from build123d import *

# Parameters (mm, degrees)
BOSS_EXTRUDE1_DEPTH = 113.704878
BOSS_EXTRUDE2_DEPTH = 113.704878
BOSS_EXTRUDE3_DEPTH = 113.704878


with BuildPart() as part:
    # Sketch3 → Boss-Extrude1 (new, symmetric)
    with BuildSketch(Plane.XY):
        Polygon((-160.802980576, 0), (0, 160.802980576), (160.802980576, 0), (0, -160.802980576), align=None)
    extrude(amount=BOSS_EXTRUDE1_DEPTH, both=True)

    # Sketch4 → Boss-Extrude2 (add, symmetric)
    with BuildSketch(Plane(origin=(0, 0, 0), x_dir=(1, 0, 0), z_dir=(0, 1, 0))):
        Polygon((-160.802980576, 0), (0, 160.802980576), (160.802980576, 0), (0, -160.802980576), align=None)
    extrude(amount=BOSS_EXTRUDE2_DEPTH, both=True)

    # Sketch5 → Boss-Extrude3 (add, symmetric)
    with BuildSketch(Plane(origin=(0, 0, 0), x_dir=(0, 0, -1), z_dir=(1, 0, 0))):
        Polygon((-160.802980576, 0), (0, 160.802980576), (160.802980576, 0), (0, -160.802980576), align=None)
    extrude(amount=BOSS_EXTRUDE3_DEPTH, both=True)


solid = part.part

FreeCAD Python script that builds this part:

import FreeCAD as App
import Part
import Sketcher

doc = App.newDocument("Part")
body = doc.addObject("PartDesign::Body", "Body")

# Sketch on XY plane
sketch1 = body.newObject("Sketcher::SketchObject", "Sketch")
sketch1.AttachmentSupport = (doc.getObject("XY_Plane"), [""])
sketch1.MapMode = "FlatFace"
sketch1.addGeometry([
    Part.LineSegment(App.Vector(0, 161, 0), App.Vector(-161, 0, 0)),
    Part.LineSegment(App.Vector(-161, 0, 0), App.Vector(0, -161, 0)),
    Part.LineSegment(App.Vector(0, -161, 0), App.Vector(161, 0, 0)),
    Part.LineSegment(App.Vector(161, 0, 0), App.Vector(0, 161, 0)),
], False)
sketch1.addConstraint([
    Sketcher.Constraint("Coincident", 0, 2, 1, 1),
    Sketcher.Constraint("Coincident", 1, 2, 2, 1),
    Sketcher.Constraint("Coincident", 2, 2, 3, 1),
    Sketcher.Constraint("Coincident", 3, 2, 0, 1),
    Sketcher.Constraint("Symmetric", 0, 2, 2, 2, -1, 1),
    Sketcher.Constraint("Symmetric", 1, 2, 3, 2, -1, 1),
    Sketcher.Constraint("PointOnObject", 0, 2, -1),
    Sketcher.Constraint("PointOnObject", 1, 2, -2),
    Sketcher.Constraint("Perpendicular", 0, 1),
    Sketcher.Constraint("DistanceX", 0, 2, -1, 1, 160.802981),
])
pad1 = body.newObject("PartDesign::Pad", "Pad")
pad1.Profile = sketch1
pad1.Length = 227.409756
pad1.Midplane = True

# Sketch on XZ plane
sketch2 = body.newObject("Sketcher::SketchObject", "Sketch001")
sketch2.AttachmentSupport = (doc.getObject("XZ_Plane"), [""])
sketch2.MapMode = "FlatFace"
sketch2.addGeometry([
    Part.LineSegment(App.Vector(0, -161, 0), App.Vector(-161, 0, 0)),
    Part.LineSegment(App.Vector(-161, 0, 0), App.Vector(0, 161, 0)),
    Part.LineSegment(App.Vector(0, 161, 0), App.Vector(161, 0, 0)),
    Part.LineSegment(App.Vector(161, 0, 0), App.Vector(0, -161, 0)),
], False)
sketch2.addConstraint([
    Sketcher.Constraint("Coincident", 0, 2, 1, 1),
    Sketcher.Constraint("Coincident", 1, 2, 2, 1),
    Sketcher.Constraint("Coincident", 2, 2, 3, 1),
    Sketcher.Constraint("Coincident", 3, 2, 0, 1),
    Sketcher.Constraint("Symmetric", 0, 2, 2, 2, -1, 1),
    Sketcher.Constraint("Symmetric", 1, 2, 3, 2, -1, 1),
    Sketcher.Constraint("PointOnObject", 0, 2, -1),
    Sketcher.Constraint("PointOnObject", 1, 2, -2),
    Sketcher.Constraint("Perpendicular", 0, 1),
    Sketcher.Constraint("DistanceX", 0, 2, -1, 1, 160.802981),
])
pad2 = body.newObject("PartDesign::Pad", "Pad001")
pad2.Profile = sketch2
pad2.Length = 227.409756
pad2.Midplane = True

# Sketch on YZ plane
sketch3 = body.newObject("Sketcher::SketchObject", "Sketch002")
sketch3.AttachmentSupport = (doc.getObject("YZ_Plane"), [""])
sketch3.MapMode = "FlatFace"
sketch3.addGeometry([
    Part.LineSegment(App.Vector(161, 0, 0), App.Vector(0, 161, 0)),
    Part.LineSegment(App.Vector(0, 161, 0), App.Vector(-161, 0, 0)),
    Part.LineSegment(App.Vector(-161, 0, 0), App.Vector(0, -161, 0)),
    Part.LineSegment(App.Vector(0, -161, 0), App.Vector(161, 0, 0)),
], False)
sketch3.addConstraint([
    Sketcher.Constraint("Coincident", 0, 2, 1, 1),
    Sketcher.Constraint("Coincident", 1, 2, 2, 1),
    Sketcher.Constraint("Coincident", 2, 2, 3, 1),
    Sketcher.Constraint("Coincident", 3, 2, 0, 1),
    Sketcher.Constraint("Symmetric", 0, 2, 2, 2, -1, 1),
    Sketcher.Constraint("Symmetric", 1, 2, 3, 2, -1, 1),
    Sketcher.Constraint("PointOnObject", 0, 2, -2),
    Sketcher.Constraint("PointOnObject", 1, 2, -1),
    Sketcher.Constraint("Perpendicular", 0, 1),
    Sketcher.Constraint("DistanceY", -1, 1, 0, 2, 160.802981),
])
pad3 = body.newObject("PartDesign::Pad", "Pad002")
pad3.Profile = sketch3
pad3.Length = 227.409756
pad3.Midplane = True

doc.recompute()
